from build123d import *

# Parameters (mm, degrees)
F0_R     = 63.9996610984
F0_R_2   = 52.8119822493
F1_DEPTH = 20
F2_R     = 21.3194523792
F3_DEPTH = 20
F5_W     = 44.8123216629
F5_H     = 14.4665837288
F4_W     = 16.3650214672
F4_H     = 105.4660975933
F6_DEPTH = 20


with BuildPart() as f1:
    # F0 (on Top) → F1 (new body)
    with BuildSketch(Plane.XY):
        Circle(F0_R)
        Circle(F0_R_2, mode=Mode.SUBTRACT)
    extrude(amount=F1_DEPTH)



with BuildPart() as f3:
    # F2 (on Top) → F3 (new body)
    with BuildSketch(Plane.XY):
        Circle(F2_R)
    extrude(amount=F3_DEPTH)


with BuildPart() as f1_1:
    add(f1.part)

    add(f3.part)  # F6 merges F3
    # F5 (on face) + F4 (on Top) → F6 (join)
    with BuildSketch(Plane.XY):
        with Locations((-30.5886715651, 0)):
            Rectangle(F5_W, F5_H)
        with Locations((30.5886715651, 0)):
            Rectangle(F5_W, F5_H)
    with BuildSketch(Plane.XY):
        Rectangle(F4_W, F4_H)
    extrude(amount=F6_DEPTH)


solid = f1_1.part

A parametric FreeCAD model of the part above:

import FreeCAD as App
import Part
import Sketcher
from FreeCAD import Vector


def add_polygon(sketch, points):
    """Adds a closed chain of lines whose ends are joined by coincident constraints."""
    first, n = sketch.GeometryCount, len(points)
    for a, b in zip(points, points[1:] + points[:1]):
        sketch.addGeometry(Part.LineSegment(App.Vector(*a, 0), App.Vector(*b, 0)), False)
    for i in range(n):
        sketch.addConstraint(Sketcher.Constraint("Coincident", first + i, 2, first + (i + 1) % n, 1))

doc = App.newDocument("Part")
params = doc.addObject("Spreadsheet::Sheet", "Params")
for row, (alias, value) in enumerate([
    ("pad1_length", "20 mm"),
    ("pad2_length", "20 mm"),
    ("pad3_length", "20 mm"),
], start=1):
    params.set(f"A{row}", alias)
    params.set(f"B{row}", "=" + value)
    params.setAlias(f"B{row}", alias)

body = doc.addObject("PartDesign::Body", "Body")

sketch1 = doc.addObject("Sketcher::SketchObject", "Sketch")
body.addObject(sketch1)
sketch1.AttachmentSupport = (doc.XY_Plane, [""])
sketch1.MapMode = "FlatFace"
sketch1.addGeometry([
    Part.Circle(Vector(0, 0, 0), Vector(0, 0, 1), 64),
    Part.Circle(Vector(0, 0, 0), Vector(0, 0, 1), 53),
], False)
sketch1.addConstraint([
    Sketcher.Constraint("Coincident", 0, 3, -1, 1),
    Sketcher.Constraint("Coincident", 1, 3, -1, 1),
    Sketcher.Constraint("Diameter", 0, 127.999322),
    Sketcher.Constraint("Diameter", 1, 105.623964),
])
pad1 = doc.addObject("PartDesign::Pad", "Pad")
body.addObject(pad1)
pad1.Profile = sketch1
pad1.setExpression("Length", "Params.pad1_length")
body2 = doc.addObject("PartDesign::Body", "Body001")

sketch2 = doc.addObject("Sketcher::SketchObject", "Sketch001")
body2.addObject(sketch2)
sketch2.AttachmentSupport = (doc.getObject("XY_Plane001"), [""])
sketch2.MapMode = "FlatFace"
sketch2.addGeometry(Part.Circle(Vector(0, 0, 0), Vector(0, 0, 1), 21), False)
sketch2.addConstraint([
    Sketcher.Constraint("Coincident", 0, 3, -1, 1),
    Sketcher.Constraint("Diameter", 0, 42.638905),
])
pad2 = doc.addObject("PartDesign::Pad", "Pad001")
body2.addObject(pad2)
pad2.Profile = sketch2
pad2.setExpression("Length", "Params.pad2_length")
body.AllowCompound = True
doc.recompute()

boolean = doc.addObject("PartDesign::Boolean", "Boolean")
body.addObject(boolean)
boolean.Type = "Fuse"
boolean.addObjects([body2])

sketch3 = doc.addObject("Sketcher::SketchObject", "Sketch002")
body.addObject(sketch3)
sketch3.AttachmentSupport = (doc.XY_Plane, [""])
sketch3.MapMode = "FlatFace"
add_polygon(sketch3, [(-53, 7), (-53, -7), (-8, -7), (-8, -53), (8, -53), (8, -7), (53, -7), (53, 7), (8, 7), (8, 53), (-8, 53), (-8, 7)])
sketch3.addConstraint([
    Sketcher.Constraint("Vertical", 0),
    Sketcher.Constraint("Horizontal", 1),
    Sketcher.Constraint("Vertical", 2),
    Sketcher.Constraint("Horizontal", 3),
    Sketcher.Constraint("Vertical", 4),
    Sketcher.Constraint("Horizontal", 5),
    Sketcher.Constraint("Vertical", 6),
    Sketcher.Constraint("Horizontal", 7),
    Sketcher.Constraint("Vertical", 8),
    Sketcher.Constraint("Horizontal", 9),
    Sketcher.Constraint("Vertical", 10),
    Sketcher.Constraint("Horizontal", 11),
    Sketcher.Constraint("Symmetric", 0, 2, 6, 2, -1, 1),
    Sketcher.Constraint("Symmetric", 2, 2, 8, 2, -1, 1),
    Sketcher.Constraint("Symmetric", 4, 2, 10, 2, -1, 1),
    Sketcher.Constraint("Symmetric", 1, 2, 4, 2, -2),
    Sketcher.Constraint("DistanceX", 1, 1, 1, 2, 44.812322),
    Sketcher.Constraint("DistanceX", 3, 1, 3, 2, 16.365021),
    Sketcher.Constraint("DistanceY", 0, 2, 0, 1, 14.466584),
    Sketcher.Constraint("DistanceY", 2, 2, 2, 1, 45.499757),
])
pad3 = doc.addObject("PartDesign::Pad", "Pad002")
body.addObject(pad3)
pad3.Profile = sketch3
pad3.setExpression("Length", "Params.pad3_length")

doc.recompute()
